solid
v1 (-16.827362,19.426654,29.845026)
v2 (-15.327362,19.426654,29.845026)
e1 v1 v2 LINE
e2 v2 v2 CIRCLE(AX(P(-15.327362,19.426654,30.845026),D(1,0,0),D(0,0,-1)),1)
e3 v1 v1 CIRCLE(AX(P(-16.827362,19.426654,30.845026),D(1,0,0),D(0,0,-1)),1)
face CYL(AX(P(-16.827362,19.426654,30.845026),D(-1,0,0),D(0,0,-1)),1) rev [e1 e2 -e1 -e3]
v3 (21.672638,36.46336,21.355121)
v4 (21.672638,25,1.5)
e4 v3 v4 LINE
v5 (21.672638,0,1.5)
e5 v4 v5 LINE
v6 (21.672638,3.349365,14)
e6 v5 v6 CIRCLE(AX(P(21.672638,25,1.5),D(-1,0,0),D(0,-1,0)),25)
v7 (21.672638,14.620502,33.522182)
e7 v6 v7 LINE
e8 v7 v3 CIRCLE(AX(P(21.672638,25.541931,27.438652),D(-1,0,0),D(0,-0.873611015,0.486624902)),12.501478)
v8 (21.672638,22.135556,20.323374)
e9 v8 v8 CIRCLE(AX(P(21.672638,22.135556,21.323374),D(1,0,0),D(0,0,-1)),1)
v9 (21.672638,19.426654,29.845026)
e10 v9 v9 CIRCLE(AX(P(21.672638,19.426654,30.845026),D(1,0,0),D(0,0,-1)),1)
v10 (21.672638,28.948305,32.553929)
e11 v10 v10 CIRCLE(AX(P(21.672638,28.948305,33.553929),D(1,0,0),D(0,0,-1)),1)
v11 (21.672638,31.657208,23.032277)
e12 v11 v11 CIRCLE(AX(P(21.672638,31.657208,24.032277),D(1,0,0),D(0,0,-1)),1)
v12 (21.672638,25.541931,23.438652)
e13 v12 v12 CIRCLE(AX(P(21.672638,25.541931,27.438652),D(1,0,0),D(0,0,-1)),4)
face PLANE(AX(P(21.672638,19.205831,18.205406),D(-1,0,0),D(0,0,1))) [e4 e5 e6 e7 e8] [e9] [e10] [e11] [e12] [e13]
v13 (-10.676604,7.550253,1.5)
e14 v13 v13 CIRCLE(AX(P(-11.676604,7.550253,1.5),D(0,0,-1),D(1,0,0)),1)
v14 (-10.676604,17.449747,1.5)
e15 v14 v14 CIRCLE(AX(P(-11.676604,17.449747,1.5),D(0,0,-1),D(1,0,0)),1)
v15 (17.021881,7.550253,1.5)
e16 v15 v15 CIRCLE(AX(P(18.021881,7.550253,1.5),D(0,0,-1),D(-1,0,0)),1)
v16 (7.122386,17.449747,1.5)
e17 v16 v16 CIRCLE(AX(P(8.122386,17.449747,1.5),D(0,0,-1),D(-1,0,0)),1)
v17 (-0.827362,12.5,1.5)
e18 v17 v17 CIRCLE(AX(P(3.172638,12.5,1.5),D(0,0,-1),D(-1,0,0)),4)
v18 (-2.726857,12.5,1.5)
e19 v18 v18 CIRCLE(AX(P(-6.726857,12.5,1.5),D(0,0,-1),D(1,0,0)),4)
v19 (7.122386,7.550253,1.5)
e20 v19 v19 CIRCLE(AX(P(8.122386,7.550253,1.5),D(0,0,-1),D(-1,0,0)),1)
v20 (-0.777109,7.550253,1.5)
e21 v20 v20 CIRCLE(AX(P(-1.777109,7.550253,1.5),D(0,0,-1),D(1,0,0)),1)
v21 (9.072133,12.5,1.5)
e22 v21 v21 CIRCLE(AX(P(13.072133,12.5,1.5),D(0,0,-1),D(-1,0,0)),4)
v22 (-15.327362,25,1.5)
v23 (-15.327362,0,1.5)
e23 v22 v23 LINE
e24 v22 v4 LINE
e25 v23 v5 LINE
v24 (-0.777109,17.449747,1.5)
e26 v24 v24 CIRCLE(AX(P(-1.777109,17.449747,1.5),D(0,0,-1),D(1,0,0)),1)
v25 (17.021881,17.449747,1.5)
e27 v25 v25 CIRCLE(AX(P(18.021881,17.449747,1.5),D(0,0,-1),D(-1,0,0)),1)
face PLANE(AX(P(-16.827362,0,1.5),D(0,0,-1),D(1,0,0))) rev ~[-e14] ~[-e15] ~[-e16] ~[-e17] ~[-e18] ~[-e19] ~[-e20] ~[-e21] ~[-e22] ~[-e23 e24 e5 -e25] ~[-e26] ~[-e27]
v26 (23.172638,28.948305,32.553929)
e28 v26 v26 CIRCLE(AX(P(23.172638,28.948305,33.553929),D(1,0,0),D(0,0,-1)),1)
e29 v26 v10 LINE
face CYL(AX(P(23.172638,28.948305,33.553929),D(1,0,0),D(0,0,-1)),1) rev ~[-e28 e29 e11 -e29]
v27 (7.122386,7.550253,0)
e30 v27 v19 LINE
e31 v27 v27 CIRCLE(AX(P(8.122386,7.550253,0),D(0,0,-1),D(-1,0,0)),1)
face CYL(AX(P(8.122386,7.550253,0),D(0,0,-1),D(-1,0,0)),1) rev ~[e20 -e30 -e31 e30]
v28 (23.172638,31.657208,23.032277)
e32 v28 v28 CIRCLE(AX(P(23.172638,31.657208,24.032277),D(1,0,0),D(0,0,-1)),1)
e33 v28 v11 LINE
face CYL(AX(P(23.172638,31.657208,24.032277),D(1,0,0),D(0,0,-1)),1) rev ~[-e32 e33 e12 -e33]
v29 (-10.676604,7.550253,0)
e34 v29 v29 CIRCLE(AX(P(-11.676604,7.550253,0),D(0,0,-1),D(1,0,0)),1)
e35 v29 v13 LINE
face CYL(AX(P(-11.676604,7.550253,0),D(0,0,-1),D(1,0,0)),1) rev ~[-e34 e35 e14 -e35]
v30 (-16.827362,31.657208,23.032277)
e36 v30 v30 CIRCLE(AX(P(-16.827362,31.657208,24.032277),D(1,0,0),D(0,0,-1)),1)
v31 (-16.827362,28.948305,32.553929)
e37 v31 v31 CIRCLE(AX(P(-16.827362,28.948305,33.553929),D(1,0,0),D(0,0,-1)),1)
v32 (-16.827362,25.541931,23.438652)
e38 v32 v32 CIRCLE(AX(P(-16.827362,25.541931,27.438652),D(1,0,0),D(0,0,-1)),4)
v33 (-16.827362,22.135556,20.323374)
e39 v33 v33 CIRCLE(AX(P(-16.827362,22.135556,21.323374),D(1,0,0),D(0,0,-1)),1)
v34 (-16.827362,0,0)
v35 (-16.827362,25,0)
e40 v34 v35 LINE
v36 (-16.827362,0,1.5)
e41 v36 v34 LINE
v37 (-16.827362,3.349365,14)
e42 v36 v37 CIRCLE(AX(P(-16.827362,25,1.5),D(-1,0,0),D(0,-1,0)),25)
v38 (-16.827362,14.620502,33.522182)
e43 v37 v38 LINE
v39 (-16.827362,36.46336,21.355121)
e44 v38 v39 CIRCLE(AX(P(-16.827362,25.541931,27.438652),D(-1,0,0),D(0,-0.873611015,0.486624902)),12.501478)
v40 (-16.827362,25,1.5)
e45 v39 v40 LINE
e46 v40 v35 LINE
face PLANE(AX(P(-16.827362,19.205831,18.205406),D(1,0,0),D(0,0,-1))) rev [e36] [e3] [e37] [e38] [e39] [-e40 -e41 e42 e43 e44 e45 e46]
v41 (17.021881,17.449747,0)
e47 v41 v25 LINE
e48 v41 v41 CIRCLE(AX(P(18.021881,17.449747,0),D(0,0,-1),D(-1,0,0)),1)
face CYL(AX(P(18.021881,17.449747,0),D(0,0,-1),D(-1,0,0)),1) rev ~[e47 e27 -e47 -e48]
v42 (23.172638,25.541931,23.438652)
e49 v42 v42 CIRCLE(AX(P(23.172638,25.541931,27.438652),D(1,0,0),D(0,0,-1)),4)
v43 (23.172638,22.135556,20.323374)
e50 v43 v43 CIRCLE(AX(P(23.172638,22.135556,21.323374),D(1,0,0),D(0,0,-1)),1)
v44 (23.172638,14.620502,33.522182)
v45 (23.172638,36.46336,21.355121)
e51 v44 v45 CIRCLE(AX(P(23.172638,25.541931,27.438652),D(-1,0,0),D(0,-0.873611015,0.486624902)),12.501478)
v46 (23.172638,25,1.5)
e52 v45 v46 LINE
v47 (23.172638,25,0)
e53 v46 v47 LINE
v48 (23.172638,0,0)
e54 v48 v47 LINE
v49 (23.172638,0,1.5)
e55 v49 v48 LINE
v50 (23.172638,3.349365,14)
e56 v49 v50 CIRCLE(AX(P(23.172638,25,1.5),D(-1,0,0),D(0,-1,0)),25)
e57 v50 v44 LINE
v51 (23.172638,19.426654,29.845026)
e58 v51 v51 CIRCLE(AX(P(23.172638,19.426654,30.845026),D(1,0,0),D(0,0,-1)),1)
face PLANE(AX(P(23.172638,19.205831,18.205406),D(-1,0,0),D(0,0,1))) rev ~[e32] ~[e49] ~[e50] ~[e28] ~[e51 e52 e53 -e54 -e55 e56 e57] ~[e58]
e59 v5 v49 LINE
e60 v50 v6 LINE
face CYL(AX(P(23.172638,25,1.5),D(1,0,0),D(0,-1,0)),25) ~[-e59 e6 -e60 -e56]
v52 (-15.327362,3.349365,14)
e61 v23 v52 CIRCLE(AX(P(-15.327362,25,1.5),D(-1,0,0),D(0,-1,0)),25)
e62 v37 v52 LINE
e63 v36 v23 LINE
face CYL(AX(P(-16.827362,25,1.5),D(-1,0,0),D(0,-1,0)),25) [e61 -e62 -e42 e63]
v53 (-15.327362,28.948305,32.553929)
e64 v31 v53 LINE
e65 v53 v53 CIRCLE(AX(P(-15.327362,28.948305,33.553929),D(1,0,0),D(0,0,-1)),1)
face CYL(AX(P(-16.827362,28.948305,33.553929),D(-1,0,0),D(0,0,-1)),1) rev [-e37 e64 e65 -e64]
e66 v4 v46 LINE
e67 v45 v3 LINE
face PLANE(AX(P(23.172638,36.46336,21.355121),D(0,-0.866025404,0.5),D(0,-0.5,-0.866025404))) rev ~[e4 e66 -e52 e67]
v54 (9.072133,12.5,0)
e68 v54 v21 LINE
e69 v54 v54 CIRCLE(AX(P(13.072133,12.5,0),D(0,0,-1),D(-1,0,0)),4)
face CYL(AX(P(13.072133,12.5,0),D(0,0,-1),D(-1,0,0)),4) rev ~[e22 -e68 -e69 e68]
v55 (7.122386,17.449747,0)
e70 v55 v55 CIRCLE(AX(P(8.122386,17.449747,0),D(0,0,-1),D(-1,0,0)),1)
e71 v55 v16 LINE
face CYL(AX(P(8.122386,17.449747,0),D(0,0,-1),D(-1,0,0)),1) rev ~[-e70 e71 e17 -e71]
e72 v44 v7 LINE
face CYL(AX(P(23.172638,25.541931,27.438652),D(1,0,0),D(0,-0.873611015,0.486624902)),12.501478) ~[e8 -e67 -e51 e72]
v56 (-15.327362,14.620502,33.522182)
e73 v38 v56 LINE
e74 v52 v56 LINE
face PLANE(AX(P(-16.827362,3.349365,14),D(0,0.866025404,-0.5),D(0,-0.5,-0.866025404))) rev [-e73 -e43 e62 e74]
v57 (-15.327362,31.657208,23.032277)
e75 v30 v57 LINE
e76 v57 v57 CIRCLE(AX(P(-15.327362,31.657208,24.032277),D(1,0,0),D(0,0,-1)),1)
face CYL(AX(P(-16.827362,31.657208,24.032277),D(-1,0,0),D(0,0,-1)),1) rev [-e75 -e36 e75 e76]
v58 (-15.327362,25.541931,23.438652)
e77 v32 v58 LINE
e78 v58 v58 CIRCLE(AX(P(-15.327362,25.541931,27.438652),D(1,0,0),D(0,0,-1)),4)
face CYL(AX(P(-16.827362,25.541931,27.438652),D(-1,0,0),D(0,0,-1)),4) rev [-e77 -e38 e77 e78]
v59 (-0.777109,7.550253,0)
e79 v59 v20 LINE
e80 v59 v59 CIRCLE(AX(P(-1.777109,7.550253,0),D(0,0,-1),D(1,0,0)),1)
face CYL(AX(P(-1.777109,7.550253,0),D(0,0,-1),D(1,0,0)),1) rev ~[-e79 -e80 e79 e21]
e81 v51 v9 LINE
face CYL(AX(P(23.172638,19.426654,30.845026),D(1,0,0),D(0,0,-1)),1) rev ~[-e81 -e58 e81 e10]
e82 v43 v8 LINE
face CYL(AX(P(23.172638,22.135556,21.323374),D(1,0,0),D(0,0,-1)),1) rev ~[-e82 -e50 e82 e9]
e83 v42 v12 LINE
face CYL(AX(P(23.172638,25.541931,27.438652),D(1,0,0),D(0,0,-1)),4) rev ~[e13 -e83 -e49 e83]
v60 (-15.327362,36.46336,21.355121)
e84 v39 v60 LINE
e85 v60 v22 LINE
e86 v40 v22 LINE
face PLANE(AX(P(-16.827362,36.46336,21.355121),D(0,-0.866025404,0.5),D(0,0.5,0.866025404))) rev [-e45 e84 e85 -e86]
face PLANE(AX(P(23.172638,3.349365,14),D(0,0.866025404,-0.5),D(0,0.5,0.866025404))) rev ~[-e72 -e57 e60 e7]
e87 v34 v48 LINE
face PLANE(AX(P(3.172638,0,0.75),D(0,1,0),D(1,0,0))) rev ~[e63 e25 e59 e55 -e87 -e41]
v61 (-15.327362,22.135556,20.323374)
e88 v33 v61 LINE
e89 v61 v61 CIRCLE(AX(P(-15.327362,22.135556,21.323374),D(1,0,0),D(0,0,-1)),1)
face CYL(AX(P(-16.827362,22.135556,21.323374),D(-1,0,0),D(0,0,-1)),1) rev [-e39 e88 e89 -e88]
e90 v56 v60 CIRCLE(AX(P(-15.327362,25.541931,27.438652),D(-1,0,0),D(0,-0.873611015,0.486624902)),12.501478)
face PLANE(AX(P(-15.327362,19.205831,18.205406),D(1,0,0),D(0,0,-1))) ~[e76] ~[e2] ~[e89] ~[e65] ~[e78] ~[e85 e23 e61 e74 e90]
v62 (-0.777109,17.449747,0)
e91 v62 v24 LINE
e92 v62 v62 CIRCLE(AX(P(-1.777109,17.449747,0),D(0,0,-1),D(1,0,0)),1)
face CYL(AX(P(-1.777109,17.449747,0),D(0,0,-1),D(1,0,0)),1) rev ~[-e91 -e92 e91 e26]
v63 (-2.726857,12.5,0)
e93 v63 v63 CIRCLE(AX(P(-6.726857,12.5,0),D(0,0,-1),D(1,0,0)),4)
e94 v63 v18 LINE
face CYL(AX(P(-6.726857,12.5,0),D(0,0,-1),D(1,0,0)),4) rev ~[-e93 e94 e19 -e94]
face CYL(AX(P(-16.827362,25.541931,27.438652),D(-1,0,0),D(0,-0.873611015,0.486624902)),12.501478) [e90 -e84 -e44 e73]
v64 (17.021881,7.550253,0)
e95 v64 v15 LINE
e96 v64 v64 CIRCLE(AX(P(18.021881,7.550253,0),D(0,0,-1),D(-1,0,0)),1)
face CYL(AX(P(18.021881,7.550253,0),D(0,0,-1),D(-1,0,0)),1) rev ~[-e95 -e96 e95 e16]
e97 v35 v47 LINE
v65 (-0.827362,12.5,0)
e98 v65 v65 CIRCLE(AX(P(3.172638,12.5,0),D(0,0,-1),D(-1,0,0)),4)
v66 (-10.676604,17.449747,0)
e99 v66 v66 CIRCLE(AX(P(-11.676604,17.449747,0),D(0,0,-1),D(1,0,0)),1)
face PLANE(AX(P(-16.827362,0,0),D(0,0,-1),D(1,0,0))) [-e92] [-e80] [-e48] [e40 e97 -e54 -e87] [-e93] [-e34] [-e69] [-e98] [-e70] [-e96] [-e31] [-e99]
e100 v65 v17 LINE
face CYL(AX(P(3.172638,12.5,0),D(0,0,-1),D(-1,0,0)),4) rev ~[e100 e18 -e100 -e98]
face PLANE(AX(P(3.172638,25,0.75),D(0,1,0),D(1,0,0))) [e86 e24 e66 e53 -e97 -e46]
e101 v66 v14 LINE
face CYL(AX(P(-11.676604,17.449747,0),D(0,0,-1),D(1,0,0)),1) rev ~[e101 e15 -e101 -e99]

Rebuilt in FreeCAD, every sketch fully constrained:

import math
import FreeCAD as App
import Part
import Sketcher
from FreeCAD import Vector
Q = App.Units.Quantity


def add_polygon(sketch, points):
    """Adds a closed chain of lines whose ends are joined by coincident constraints."""
    first, n = sketch.GeometryCount, len(points)
    for a, b in zip(points, points[1:] + points[:1]):
        sketch.addGeometry(Part.LineSegment(App.Vector(*a, 0), App.Vector(*b, 0)), False)
    for i in range(n):
        sketch.addConstraint(Sketcher.Constraint("Coincident", first + i, 2, first + (i + 1) % n, 1))

doc = App.newDocument("Part")
body = doc.addObject("PartDesign::Body", "Body")

# Sketch on XZ plane
sketch1 = body.newObject("Sketcher::SketchObject", "Sketch")
sketch1.AttachmentSupport = (doc.getObject("XZ_Plane"), [""])
sketch1.MapMode = "FlatFace"
add_polygon(sketch1, [(-16.8, 0), (-16.8, 1.5), (23.2, 1.5), (23.2, 0)])  # lines 0-3
sketch1.addConstraint([
    Sketcher.Constraint("Vertical", 0),
    Sketcher.Constraint("Horizontal", 1),
    Sketcher.Constraint("Vertical", 2),
    Sketcher.Constraint("Horizontal", 3),
    Sketcher.Constraint("PointOnObject", 2, 2, -1),
    Sketcher.Constraint("DistanceX", 1, 1, 1, 2, Q("40 mm")),
    Sketcher.Constraint("DistanceY", 0, 1, 0, 2, Q("1.5 mm")),
    Sketcher.Constraint("DistanceX", 0, 2, -1, 1, Q("16.827362 mm")),
])
pad1 = body.newObject("PartDesign::Pad", "Pad")
pad1.Profile = sketch1
pad1.Length = 25
pad1.Reversed = True

# Sketch on YZ plane
sketch2 = body.newObject("Sketcher::SketchObject", "Sketch001")
sketch2.AttachmentSupport = (doc.getObject("YZ_Plane"), [""])
sketch2.MapMode = "FlatFace"
sketch2.AttachmentOffset = App.Placement(Vector(0, 0, 23.172638), App.Rotation())
sketch2.addGeometry([
    Part.LineSegment(Vector(14.6, 33.5, 0), Vector(3.3, 14, 0)),  # 0
    Part.ArcOfCircle(Part.Circle(Vector(25, 1.5, 0), Vector(0, 0, 1), 25), math.radians(150), math.radians(180)),  # 1
    Part.LineSegment(Vector(0, 1.5, 0), Vector(25, 1.5, 0)),  # 2
    Part.LineSegment(Vector(25, 1.5, 0), Vector(36.5, 21.4, 0)),  # 3
    Part.ArcOfCircle(Part.Circle(Vector(25.5, 27.4, 0), Vector(0, 0, 1), 12.5), math.radians(-29), math.radians(151)),  # 4
    Part.Circle(Vector(22.1, 21.3, 0), Vector(0, 0, 1), 1),  # 5
    Part.Circle(Vector(19.4, 30.8, 0), Vector(0, 0, 1), 1),  # 6
    Part.Circle(Vector(31.7, 24, 0), Vector(0, 0, 1), 1),  # 7
    Part.Circle(Vector(25.5, 27.4, 0), Vector(0, 0, 1), 4),  # 8
    Part.Circle(Vector(28.9, 33.6, 0), Vector(0, 0, 1), 1),  # 9
], False)
sketch2.addConstraint([
    Sketcher.Constraint("Tangent", 0, 2, 1, 1),
    Sketcher.Constraint("Coincident", 1, 2, 2, 1),
    Sketcher.Constraint("Coincident", 2, 2, 3, 1),
    Sketcher.Constraint("Coincident", 3, 2, 4, 1),
    Sketcher.Constraint("Coincident", 4, 2, 0, 1),
    Sketcher.Constraint("Horizontal", 2),
    Sketcher.Constraint("Coincident", 8, 3, 4, 3),
    Sketcher.Constraint("Coincident", 2, 2, 1, 3),
    Sketcher.Constraint("Equal", 5, 6),
    Sketcher.Constraint("Equal", 6, 7),
    Sketcher.Constraint("Equal", 7, 9),
    Sketcher.Constraint("PointOnObject", 1, 2, -2),
    Sketcher.Constraint("Parallel", 0, 3),
    Sketcher.Constraint("Diameter", 5, Q("2 mm")),
    Sketcher.Constraint("Diameter", 8, Q("8 mm")),
    Sketcher.Constraint("Radius", 1, Q("25 mm")),
    Sketcher.Constraint("Angle", 0, Q("-120 deg")),
    Sketcher.Constraint("DistanceY", -1, 1, 0, 2, Q("14 mm")),
    Sketcher.Constraint("Radius", 4, Q("12.501478 mm")),
    Sketcher.Constraint("DistanceX", -1, 1, 4, 2, Q("14.620502 mm")),
    Sketcher.Constraint("DistanceX", -1, 1, 4, 3, Q("25.541931 mm")),
    Sketcher.Constraint("DistanceY", -1, 1, 9, 3, Q("33.553929 mm")),
    Sketcher.Constraint("DistanceY", 5, 3, 6, 3, Q("9.521651 mm")),
    Sketcher.Constraint("DistanceX", 5, 3, 7, 3, Q("9.521651 mm")),
    Sketcher.Constraint("DistanceY", 7, 3, 6, 3, Q("6.812749 mm")),
    Sketcher.Constraint("DistanceX", 6, 3, 9, 3, Q("9.521651 mm")),
    Sketcher.Constraint("DistanceY", 7, 3, 9, 3, Q("9.521651 mm")),
    Sketcher.Constraint("DistanceX", 5, 3, 9, 3, Q("6.812749 mm")),
    Sketcher.Constraint("DistanceX", 0, 2, 5, 3, Q("18.786192 mm")),
])
pad2 = body.newObject("PartDesign::Pad", "Pad001")
pad2.Profile = sketch2
pad2.Length = 1.5
pad2.Reversed = True
doc.recompute()

datumplane = body.newObject("PartDesign::Plane", "DatumPlane")
datumplane.AttachmentSupport = (doc.getObject("YZ_Plane"), [""])
datumplane.MapMode = "FlatFace"
datumplane.AttachmentOffset = App.Placement(Vector(0, 0, 3.172638), App.Rotation())
mirrored = body.newObject("PartDesign::Mirrored", "Mirrored")
mirrored.Originals = [pad2]
mirrored.MirrorPlane = (datumplane, [""])
body.Tip = mirrored

# Sketch on XY plane
sketch3 = body.newObject("Sketcher::SketchObject", "Sketch002")
sketch3.AttachmentSupport = (doc.getObject("XY_Plane"), [""])
sketch3.MapMode = "FlatFace"
sketch3.addGeometry([
    Part.Circle(Vector(3.2, 12.5, 0), Vector(0, 0, 1), 4),  # 0
    Part.Circle(Vector(13.1, 12.5, 0), Vector(0, 0, 1), 4),  # 1
    Part.Circle(Vector(8.1, 7.6, 0), Vector(0, 0, 1), 1),  # 2
    Part.Circle(Vector(18, 7.6, 0), Vector(0, 0, 1), 1),  # 3
    Part.Circle(Vector(18, 17.4, 0), Vector(0, 0, 1), 1),  # 4
    Part.Circle(Vector(8.1, 17.4, 0), Vector(0, 0, 1), 1),  # 5
    Part.Circle(Vector(-11.7, 17.4, 0), Vector(0, 0, 1), 1),  # 6
    Part.Circle(Vector(-1.8, 17.4, 0), Vector(0, 0, 1), 1),  # 7
    Part.Circle(Vector(-11.7, 7.6, 0), Vector(0, 0, 1), 1),  # 8
    Part.Circle(Vector(-6.7, 12.5, 0), Vector(0, 0, 1), 4),  # 9
    Part.Circle(Vector(-1.8, 7.6, 0), Vector(0, 0, 1), 1),  # 10
], False)
sketch3.addConstraint([
    Sketcher.Constraint("Equal", 0, 1),
    Sketcher.Constraint("Equal", 2, 3),
    Sketcher.Constraint("Equal", 3, 4),
    Sketcher.Constraint("Equal", 4, 5),
    Sketcher.Constraint("Equal", 5, 6),
    Sketcher.Constraint("Equal", 6, 7),
    Sketcher.Constraint("Equal", 7, 8),
    Sketcher.Constraint("Equal", 1, 9),
    Sketcher.Constraint("Equal", 8, 10),
    Sketcher.Constraint("Horizontal", 0, 3, 1, 3),
    Sketcher.Constraint("Horizontal", 2, 3, 3, 3),
    Sketcher.Constraint("Horizontal", 4, 3, 5, 3),
    Sketcher.Constraint("Horizontal", 5, 3, 6, 3),
    Sketcher.Constraint("Horizontal", 6, 3, 7, 3),
    Sketcher.Constraint("Horizontal", 3, 3, 8, 3),
    Sketcher.Constraint("Horizontal", 1, 3, 9, 3),
    Sketcher.Constraint("Horizontal", 8, 3, 10, 3),
    Sketcher.Constraint("Vertical", 3, 3, 4, 3),
    Sketcher.Constraint("Vertical", 2, 3, 5, 3),
    Sketcher.Constraint("Vertical", 6, 3, 8, 3),
    Sketcher.Constraint("Vertical", 7, 3, 10, 3),
    Sketcher.Constraint("Diameter", 0, Q("8 mm")),
    Sketcher.Constraint("Diameter", 2, Q("2 mm")),
    Sketcher.Constraint("DistanceY", -1, 1, 0, 3, Q("12.5 mm")),
    Sketcher.Constraint("DistanceX", -1, 1, 0, 3, Q("3.172638 mm")),
    Sketcher.Constraint("DistanceX", -1, 1, 3, 3, Q("18.021881 mm")),
    Sketcher.Constraint("DistanceX", 7, 3, -1, 1, Q("1.777109 mm")),
    Sketcher.Constraint("DistanceX", 6, 3, 5, 3, Q("19.79899 mm")),
    Sketcher.Constraint("DistanceX", -1, 1, 1, 3, Q("13.072133 mm")),
    Sketcher.Constraint("DistanceX", -1, 1, 2, 3, Q("8.122386 mm")),
    Sketcher.Constraint("DistanceY", -1, 1, 2, 3, Q("7.550253 mm")),
    Sketcher.Constraint("DistanceY", -1, 1, 4, 3, Q("17.449747 mm")),
    Sketcher.Constraint("DistanceX", 9, 3, -1, 1, Q("6.726857 mm")),
])
pocket1 = body.newObject("PartDesign::Pocket", "Pocket")
pocket1.Profile = sketch3
pocket1.Length = 1.5
pocket1.Reversed = True

doc.recompute()
